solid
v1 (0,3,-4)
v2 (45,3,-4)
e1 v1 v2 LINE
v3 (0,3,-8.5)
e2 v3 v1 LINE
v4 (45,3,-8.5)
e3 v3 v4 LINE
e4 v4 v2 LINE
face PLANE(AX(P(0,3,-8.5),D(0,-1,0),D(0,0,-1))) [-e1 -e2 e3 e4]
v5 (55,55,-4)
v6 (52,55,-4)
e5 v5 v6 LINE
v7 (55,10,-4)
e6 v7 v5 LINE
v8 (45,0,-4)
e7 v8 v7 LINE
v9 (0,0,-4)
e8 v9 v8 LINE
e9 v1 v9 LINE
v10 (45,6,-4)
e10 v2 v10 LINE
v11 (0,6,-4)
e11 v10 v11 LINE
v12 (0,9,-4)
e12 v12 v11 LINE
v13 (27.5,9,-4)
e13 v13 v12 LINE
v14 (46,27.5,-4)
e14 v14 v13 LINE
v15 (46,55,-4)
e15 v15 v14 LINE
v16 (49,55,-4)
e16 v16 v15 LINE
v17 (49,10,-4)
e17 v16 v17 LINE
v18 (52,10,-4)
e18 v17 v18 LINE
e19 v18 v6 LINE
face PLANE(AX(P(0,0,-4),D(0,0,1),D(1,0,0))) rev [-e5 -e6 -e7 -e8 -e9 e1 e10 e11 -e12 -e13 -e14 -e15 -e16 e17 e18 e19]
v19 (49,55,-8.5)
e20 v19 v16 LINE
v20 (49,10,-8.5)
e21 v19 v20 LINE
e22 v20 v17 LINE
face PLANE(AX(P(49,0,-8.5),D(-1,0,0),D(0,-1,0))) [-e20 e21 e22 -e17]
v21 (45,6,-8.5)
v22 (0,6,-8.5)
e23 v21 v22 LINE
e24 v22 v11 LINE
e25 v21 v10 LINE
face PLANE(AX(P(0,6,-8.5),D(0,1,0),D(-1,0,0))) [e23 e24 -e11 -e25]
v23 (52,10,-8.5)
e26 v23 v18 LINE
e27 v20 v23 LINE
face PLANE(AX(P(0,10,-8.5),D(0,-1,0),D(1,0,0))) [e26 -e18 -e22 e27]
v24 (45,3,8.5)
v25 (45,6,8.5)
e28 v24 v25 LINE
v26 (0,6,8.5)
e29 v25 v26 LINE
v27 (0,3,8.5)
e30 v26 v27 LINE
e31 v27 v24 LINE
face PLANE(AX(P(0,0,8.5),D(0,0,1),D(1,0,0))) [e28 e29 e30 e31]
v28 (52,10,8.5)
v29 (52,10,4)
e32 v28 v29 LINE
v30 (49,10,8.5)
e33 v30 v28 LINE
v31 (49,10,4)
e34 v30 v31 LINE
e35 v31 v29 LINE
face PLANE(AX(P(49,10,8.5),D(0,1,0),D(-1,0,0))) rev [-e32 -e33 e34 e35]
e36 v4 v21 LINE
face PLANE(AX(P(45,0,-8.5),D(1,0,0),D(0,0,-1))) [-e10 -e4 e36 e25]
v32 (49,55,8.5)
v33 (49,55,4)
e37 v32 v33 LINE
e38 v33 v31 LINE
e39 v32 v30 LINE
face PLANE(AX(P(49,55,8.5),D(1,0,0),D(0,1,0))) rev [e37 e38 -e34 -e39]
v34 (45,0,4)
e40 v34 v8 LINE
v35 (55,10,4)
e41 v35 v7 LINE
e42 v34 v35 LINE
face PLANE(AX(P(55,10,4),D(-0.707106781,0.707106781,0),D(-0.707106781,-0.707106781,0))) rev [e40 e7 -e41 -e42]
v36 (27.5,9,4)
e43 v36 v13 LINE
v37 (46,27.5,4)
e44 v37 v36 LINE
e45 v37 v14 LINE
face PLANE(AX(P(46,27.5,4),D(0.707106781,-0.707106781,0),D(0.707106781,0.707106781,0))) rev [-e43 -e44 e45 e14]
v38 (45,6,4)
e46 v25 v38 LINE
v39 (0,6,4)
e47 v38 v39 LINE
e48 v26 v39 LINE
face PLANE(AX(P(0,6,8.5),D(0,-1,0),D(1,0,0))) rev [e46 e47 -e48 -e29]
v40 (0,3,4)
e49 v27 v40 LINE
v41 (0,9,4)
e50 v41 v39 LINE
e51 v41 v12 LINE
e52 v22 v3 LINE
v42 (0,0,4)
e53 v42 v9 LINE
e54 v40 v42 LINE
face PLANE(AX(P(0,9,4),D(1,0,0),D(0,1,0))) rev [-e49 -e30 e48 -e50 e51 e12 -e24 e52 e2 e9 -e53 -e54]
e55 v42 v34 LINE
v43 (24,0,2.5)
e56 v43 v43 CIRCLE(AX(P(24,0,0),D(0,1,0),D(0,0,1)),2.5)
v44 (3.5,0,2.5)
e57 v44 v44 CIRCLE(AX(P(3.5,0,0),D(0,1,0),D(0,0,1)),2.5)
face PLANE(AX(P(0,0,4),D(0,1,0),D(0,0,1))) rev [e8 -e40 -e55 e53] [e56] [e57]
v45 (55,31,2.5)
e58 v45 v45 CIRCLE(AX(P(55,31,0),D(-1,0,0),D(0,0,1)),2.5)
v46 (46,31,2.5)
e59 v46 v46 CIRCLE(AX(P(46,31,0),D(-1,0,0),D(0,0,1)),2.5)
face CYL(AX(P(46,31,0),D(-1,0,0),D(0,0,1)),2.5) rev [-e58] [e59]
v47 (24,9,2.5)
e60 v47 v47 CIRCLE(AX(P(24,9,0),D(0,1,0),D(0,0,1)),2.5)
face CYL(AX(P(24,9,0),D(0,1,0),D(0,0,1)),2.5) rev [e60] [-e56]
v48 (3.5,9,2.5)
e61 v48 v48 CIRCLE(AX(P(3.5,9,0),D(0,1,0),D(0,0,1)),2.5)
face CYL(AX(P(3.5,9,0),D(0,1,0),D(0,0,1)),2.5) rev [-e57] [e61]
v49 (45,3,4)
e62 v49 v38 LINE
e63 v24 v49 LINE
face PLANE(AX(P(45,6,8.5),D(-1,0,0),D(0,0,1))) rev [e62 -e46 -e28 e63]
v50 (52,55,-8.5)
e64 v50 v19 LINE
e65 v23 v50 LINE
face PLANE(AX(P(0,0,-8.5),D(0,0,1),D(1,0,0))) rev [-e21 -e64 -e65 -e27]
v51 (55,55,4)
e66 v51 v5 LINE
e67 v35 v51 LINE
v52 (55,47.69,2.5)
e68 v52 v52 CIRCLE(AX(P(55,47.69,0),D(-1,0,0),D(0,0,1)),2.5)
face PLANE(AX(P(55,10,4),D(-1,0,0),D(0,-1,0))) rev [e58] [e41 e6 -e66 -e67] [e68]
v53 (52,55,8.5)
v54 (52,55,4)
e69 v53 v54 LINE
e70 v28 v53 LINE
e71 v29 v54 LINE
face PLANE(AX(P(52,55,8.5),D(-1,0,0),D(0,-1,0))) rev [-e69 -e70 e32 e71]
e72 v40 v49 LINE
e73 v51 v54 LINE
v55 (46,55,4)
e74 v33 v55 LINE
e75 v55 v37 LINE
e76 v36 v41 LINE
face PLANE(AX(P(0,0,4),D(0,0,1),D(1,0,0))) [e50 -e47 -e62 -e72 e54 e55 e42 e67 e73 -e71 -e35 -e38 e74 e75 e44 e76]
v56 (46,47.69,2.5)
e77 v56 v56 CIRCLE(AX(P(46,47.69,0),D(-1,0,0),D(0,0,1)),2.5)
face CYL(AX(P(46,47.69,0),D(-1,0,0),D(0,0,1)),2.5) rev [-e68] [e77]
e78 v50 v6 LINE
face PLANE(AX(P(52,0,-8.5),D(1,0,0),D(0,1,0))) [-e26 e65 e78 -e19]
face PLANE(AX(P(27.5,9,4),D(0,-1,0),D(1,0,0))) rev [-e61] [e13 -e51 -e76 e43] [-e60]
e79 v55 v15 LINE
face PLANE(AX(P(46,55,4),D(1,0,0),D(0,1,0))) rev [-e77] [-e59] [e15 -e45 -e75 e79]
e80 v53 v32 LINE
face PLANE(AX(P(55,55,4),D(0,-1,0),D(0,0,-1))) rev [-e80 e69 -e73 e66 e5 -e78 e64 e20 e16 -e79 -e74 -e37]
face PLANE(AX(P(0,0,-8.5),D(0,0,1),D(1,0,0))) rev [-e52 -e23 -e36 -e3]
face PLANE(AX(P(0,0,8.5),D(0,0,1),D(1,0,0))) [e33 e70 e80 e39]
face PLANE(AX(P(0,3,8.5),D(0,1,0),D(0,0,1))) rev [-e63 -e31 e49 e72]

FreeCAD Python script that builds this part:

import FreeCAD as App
import Part
import Sketcher
from FreeCAD import Vector

doc = App.newDocument("Part")
body = doc.addObject("PartDesign::Body", "Body")

# Sketch on XY plane
sketch1 = body.newObject("Sketcher::SketchObject", "Sketch")
sketch1.AttachmentSupport = (doc.getObject("XY_Plane"), [""])
sketch1.MapMode = "FlatFace"
sketch1.addGeometry(Part.LineSegment(Vector(0, 0, 0), Vector(45, 0, 0)), False)
sketch1.addGeometry(Part.LineSegment(Vector(45, 0, 0), Vector(55, 10, 0)), False)
sketch1.addGeometry(Part.LineSegment(Vector(55, 10, 0), Vector(55, 55, 0)), False)
sketch1.addGeometry(Part.LineSegment(Vector(55, 55, 0), Vector(46, 55, 0)), False)
sketch1.addGeometry(Part.LineSegment(Vector(46, 55, 0), Vector(46, 27.5, 0)), False)
sketch1.addGeometry(Part.LineSegment(Vector(46, 27.5, 0), Vector(27.5, 9, 0)), False)
sketch1.addGeometry(Part.LineSegment(Vector(27.5, 9, 0), Vector(0, 9, 0)), False)
sketch1.addGeometry(Part.LineSegment(Vector(0, 9, 0), Vector(0, 0, 0)), False)
sketch1.addConstraint(Sketcher.Constraint("Coincident", 0, 2, 1, 1))
sketch1.addConstraint(Sketcher.Constraint("Coincident", 1, 2, 2, 1))
sketch1.addConstraint(Sketcher.Constraint("Coincident", 2, 2, 3, 1))
sketch1.addConstraint(Sketcher.Constraint("Coincident", 3, 2, 4, 1))
sketch1.addConstraint(Sketcher.Constraint("Coincident", 4, 2, 5, 1))
sketch1.addConstraint(Sketcher.Constraint("Coincident", 5, 2, 6, 1))
sketch1.addConstraint(Sketcher.Constraint("Coincident", 6, 2, 7, 1))
sketch1.addConstraint(Sketcher.Constraint("Coincident", 7, 2, 0, 1))
sketch1.addConstraint(Sketcher.Constraint("Horizontal", 0))
sketch1.addConstraint(Sketcher.Constraint("Vertical", 2))
sketch1.addConstraint(Sketcher.Constraint("Horizontal", 3))
sketch1.addConstraint(Sketcher.Constraint("Vertical", 4))
sketch1.addConstraint(Sketcher.Constraint("Horizontal", 6))
sketch1.addConstraint(Sketcher.Constraint("Vertical", 7))
sketch1.addConstraint(Sketcher.Constraint("Coincident", 7, 2, -1, 1))
sketch1.addConstraint(Sketcher.Constraint("Parallel", 1, 5))
sketch1.addConstraint(Sketcher.Constraint("Equal", 0, 2))
sketch1.addConstraint(Sketcher.Constraint("Equal", 6, 4))
sketch1.addConstraint(Sketcher.Constraint("Equal", 3, 7))
sketch1.addConstraint(Sketcher.Constraint("DistanceX", 0, 1, 0, 2, 45.0))
sketch1.addConstraint(Sketcher.Constraint("DistanceX", 3, 2, 3, 1, 9.0))
sketch1.addConstraint(Sketcher.Constraint("DistanceX", 6, 2, 6, 1, 27.5))
sketch1.addConstraint(Sketcher.Constraint("DistanceX", -1, 1, 1, 2, 55.0))
pad1 = body.newObject("PartDesign::Pad", "Pad")
pad1.Profile = sketch1
pad1.Length = 8
pad1.Midplane = True

# Sketch on XY plane
sketch2 = body.newObject("Sketcher::SketchObject", "Sketch001")
sketch2.AttachmentSupport = (doc.getObject("XY_Plane"), [""])
sketch2.MapMode = "FlatFace"
sketch2.AttachmentOffset = App.Placement(Vector(0, 0, 4), App.Rotation())
sketch2.addGeometry(Part.LineSegment(Vector(0, 6, 0), Vector(0, 3, 0)), False)
sketch2.addGeometry(Part.LineSegment(Vector(0, 3, 0), Vector(45, 3, 0)), False)
sketch2.addGeometry(Part.LineSegment(Vector(45, 3, 0), Vector(45, 6, 0)), False)
sketch2.addGeometry(Part.LineSegment(Vector(45, 6, 0), Vector(0, 6, 0)), False)
sketch2.addGeometry(Part.LineSegment(Vector(49, 55, 0), Vector(49, 10, 0)), False)
sketch2.addGeometry(Part.LineSegment(Vector(49, 10, 0), Vector(52, 10, 0)), False)
sketch2.addGeometry(Part.LineSegment(Vector(52, 10, 0), Vector(52, 55, 0)), False)
sketch2.addGeometry(Part.LineSegment(Vector(52, 55, 0), Vector(49, 55, 0)), False)
sketch2.addConstraint(Sketcher.Constraint("Coincident", 0, 2, 1, 1))
sketch2.addConstraint(Sketcher.Constraint("Coincident", 1, 2, 2, 1))
sketch2.addConstraint(Sketcher.Constraint("Coincident", 2, 2, 3, 1))
sketch2.addConstraint(Sketcher.Constraint("Coincident", 3, 2, 0, 1))
sketch2.addConstraint(Sketcher.Constraint("Coincident", 4, 2, 5, 1))
sketch2.addConstraint(Sketcher.Constraint("Coincident", 5, 2, 6, 1))
sketch2.addConstraint(Sketcher.Constraint("Coincident", 6, 2, 7, 1))
sketch2.addConstraint(Sketcher.Constraint("Coincident", 7, 2, 4, 1))
sketch2.addConstraint(Sketcher.Constraint("Vertical", 0))
sketch2.addConstraint(Sketcher.Constraint("Horizontal", 1))
sketch2.addConstraint(Sketcher.Constraint("Vertical", 2))
sketch2.addConstraint(Sketcher.Constraint("Horizontal", 3))
sketch2.addConstraint(Sketcher.Constraint("Vertical", 4))
sketch2.addConstraint(Sketcher.Constraint("Horizontal", 5))
sketch2.addConstraint(Sketcher.Constraint("Vertical", 6))
sketch2.addConstraint(Sketcher.Constraint("Horizontal", 7))
sketch2.addConstraint(Sketcher.Constraint("PointOnObject", 0, 2, -2))
sketch2.addConstraint(Sketcher.Constraint("Equal", 7, 0))
sketch2.addConstraint(Sketcher.Constraint("Equal", 3, 4))
sketch2.addConstraint(Sketcher.Constraint("DistanceX", 1, 1, 1, 2, 45.0))
sketch2.addConstraint(Sketcher.Constraint("DistanceX", 5, 1, 5, 2, 3.0))
sketch2.addConstraint(Sketcher.Constraint("DistanceY", -1, 1, 0, 2, 3.0))
sketch2.addConstraint(Sketcher.Constraint("DistanceX", -1, 1, 4, 2, 49.0))
sketch2.addConstraint(Sketcher.Constraint("DistanceY", -1, 1, 4, 2, 10.0))
pad2 = body.newObject("PartDesign::Pad", "Pad001")
pad2.Profile = sketch2
pad2.Length = 4.5

# Sketch on XY plane
sketch3 = body.newObject("Sketcher::SketchObject", "Sketch002")
sketch3.AttachmentSupport = (doc.getObject("XY_Plane"), [""])
sketch3.MapMode = "FlatFace"
sketch3.AttachmentOffset = App.Placement(Vector(0, 0, -4), App.Rotation())
sketch3.addGeometry(Part.LineSegment(Vector(0, 6, 0), Vector(0, 3, 0)), False)
sketch3.addGeometry(Part.LineSegment(Vector(0, 3, 0), Vector(45, 3, 0)), False)
sketch3.addGeometry(Part.LineSegment(Vector(45, 3, 0), Vector(45, 6, 0)), False)
sketch3.addGeometry(Part.LineSegment(Vector(45, 6, 0), Vector(0, 6, 0)), False)
sketch3.addGeometry(Part.LineSegment(Vector(49, 55, 0), Vector(49, 10, 0)), False)
sketch3.addGeometry(Part.LineSegment(Vector(49, 10, 0), Vector(52, 10, 0)), False)
sketch3.addGeometry(Part.LineSegment(Vector(52, 10, 0), Vector(52, 55, 0)), False)
sketch3.addGeometry(Part.LineSegment(Vector(52, 55, 0), Vector(49, 55, 0)), False)
sketch3.addConstraint(Sketcher.Constraint("Coincident", 0, 2, 1, 1))
sketch3.addConstraint(Sketcher.Constraint("Coincident", 1, 2, 2, 1))
sketch3.addConstraint(Sketcher.Constraint("Coincident", 2, 2, 3, 1))
sketch3.addConstraint(Sketcher.Constraint("Coincident", 3, 2, 0, 1))
sketch3.addConstraint(Sketcher.Constraint("Coincident", 4, 2, 5, 1))
sketch3.addConstraint(Sketcher.Constraint("Coincident", 5, 2, 6, 1))
sketch3.addConstraint(Sketcher.Constraint("Coincident", 6, 2, 7, 1))
sketch3.addConstraint(Sketcher.Constraint("Coincident", 7, 2, 4, 1))
sketch3.addConstraint(Sketcher.Constraint("Vertical", 0))
sketch3.addConstraint(Sketcher.Constraint("Horizontal", 1))
sketch3.addConstraint(Sketcher.Constraint("Vertical", 2))
sketch3.addConstraint(Sketcher.Constraint("Horizontal", 3))
sketch3.addConstraint(Sketcher.Constraint("Vertical", 4))
sketch3.addConstraint(Sketcher.Constraint("Horizontal", 5))
sketch3.addConstraint(Sketcher.Constraint("Vertical", 6))
sketch3.addConstraint(Sketcher.Constraint("Horizontal", 7))
sketch3.addConstraint(Sketcher.Constraint("PointOnObject", 0, 2, -2))
sketch3.addConstraint(Sketcher.Constraint("Equal", 7, 0))
sketch3.addConstraint(Sketcher.Constraint("Equal", 3, 4))
sketch3.addConstraint(Sketcher.Constraint("DistanceX", 1, 1, 1, 2, 45.0))
sketch3.addConstraint(Sketcher.Constraint("DistanceX", 5, 1, 5, 2, 3.0))
sketch3.addConstraint(Sketcher.Constraint("DistanceY", -1, 1, 0, 2, 3.0))
sketch3.addConstraint(Sketcher.Constraint("DistanceX", -1, 1, 4, 2, 49.0))
sketch3.addConstraint(Sketcher.Constraint("DistanceY", -1, 1, 4, 2, 10.0))
pad3 = body.newObject("PartDesign::Pad", "Pad002")
pad3.Profile = sketch3
pad3.Length = 4.5
pad3.Reversed = True

# Sketch on YZ plane
sketch4 = body.newObject("Sketcher::SketchObject", "Sketch003")
sketch4.AttachmentSupport = (doc.getObject("YZ_Plane"), [""])
sketch4.MapMode = "FlatFace"
sketch4.AttachmentOffset = App.Placement(Vector(0, 0, 46), App.Rotation())
sketch4.addGeometry(Part.Circle(Vector(31, 0, 0), Vector(0, 0, 1), 2.5), False)
sketch4.addGeometry(Part.Circle(Vector(47.69, 0, 0), Vector(0, 0, 1), 2.5), False)
sketch4.addConstraint(Sketcher.Constraint("Equal", 0, 1))
sketch4.addConstraint(Sketcher.Constraint("PointOnObject", 0, 3, -1))
sketch4.addConstraint(Sketcher.Constraint("PointOnObject", 1, 3, -1))
sketch4.addConstraint(Sketcher.Constraint("Diameter", 0, 5.0))
sketch4.addConstraint(Sketcher.Constraint("DistanceX", -1, 1, 0, 3, 31.0))
sketch4.addConstraint(Sketcher.Constraint("DistanceX", -1, 1, 1, 3, 47.69))
doc.recompute()
hole = body.newObject("PartDesign::Hole", "Hole")
hole.Profile = sketch4
hole.ThreadType = "None"
hole.Diameter = 5
hole.DepthType = "ThroughAll"
hole.Reversed = True

# Sketch on XZ plane
sketch5 = body.newObject("Sketcher::SketchObject", "Sketch004")
sketch5.AttachmentSupport = (doc.getObject("XZ_Plane"), [""])
sketch5.MapMode = "FlatFace"
sketch5.AttachmentOffset = App.Placement(Vector(0, 0, -9), App.Rotation())
sketch5.addGeometry(Part.Circle(Vector(24, 0, 0), Vector(0, 0, 1), 2.5), False)
sketch5.addGeometry(Part.Circle(Vector(3.5, 0, 0), Vector(0, 0, 1), 2.5), False)
sketch5.addConstraint(Sketcher.Constraint("Equal", 0, 1))
sketch5.addConstraint(Sketcher.Constraint("PointOnObject", 0, 3, -1))
sketch5.addConstraint(Sketcher.Constraint("PointOnObject", 1, 3, -1))
sketch5.addConstraint(Sketcher.Constraint("Diameter", 0, 5.0))
sketch5.addConstraint(Sketcher.Constraint("DistanceX", -1, 1, 0, 3, 24.0))
sketch5.addConstraint(Sketcher.Constraint("DistanceX", -1, 1, 1, 3, 3.5))
doc.recompute()
hole2 = body.newObject("PartDesign::Hole", "Hole001")
hole2.Profile = sketch5
hole2.ThreadType = "None"
hole2.Diameter = 5
hole2.DepthType = "ThroughAll"
hole2.Reversed = True

doc.recompute()
